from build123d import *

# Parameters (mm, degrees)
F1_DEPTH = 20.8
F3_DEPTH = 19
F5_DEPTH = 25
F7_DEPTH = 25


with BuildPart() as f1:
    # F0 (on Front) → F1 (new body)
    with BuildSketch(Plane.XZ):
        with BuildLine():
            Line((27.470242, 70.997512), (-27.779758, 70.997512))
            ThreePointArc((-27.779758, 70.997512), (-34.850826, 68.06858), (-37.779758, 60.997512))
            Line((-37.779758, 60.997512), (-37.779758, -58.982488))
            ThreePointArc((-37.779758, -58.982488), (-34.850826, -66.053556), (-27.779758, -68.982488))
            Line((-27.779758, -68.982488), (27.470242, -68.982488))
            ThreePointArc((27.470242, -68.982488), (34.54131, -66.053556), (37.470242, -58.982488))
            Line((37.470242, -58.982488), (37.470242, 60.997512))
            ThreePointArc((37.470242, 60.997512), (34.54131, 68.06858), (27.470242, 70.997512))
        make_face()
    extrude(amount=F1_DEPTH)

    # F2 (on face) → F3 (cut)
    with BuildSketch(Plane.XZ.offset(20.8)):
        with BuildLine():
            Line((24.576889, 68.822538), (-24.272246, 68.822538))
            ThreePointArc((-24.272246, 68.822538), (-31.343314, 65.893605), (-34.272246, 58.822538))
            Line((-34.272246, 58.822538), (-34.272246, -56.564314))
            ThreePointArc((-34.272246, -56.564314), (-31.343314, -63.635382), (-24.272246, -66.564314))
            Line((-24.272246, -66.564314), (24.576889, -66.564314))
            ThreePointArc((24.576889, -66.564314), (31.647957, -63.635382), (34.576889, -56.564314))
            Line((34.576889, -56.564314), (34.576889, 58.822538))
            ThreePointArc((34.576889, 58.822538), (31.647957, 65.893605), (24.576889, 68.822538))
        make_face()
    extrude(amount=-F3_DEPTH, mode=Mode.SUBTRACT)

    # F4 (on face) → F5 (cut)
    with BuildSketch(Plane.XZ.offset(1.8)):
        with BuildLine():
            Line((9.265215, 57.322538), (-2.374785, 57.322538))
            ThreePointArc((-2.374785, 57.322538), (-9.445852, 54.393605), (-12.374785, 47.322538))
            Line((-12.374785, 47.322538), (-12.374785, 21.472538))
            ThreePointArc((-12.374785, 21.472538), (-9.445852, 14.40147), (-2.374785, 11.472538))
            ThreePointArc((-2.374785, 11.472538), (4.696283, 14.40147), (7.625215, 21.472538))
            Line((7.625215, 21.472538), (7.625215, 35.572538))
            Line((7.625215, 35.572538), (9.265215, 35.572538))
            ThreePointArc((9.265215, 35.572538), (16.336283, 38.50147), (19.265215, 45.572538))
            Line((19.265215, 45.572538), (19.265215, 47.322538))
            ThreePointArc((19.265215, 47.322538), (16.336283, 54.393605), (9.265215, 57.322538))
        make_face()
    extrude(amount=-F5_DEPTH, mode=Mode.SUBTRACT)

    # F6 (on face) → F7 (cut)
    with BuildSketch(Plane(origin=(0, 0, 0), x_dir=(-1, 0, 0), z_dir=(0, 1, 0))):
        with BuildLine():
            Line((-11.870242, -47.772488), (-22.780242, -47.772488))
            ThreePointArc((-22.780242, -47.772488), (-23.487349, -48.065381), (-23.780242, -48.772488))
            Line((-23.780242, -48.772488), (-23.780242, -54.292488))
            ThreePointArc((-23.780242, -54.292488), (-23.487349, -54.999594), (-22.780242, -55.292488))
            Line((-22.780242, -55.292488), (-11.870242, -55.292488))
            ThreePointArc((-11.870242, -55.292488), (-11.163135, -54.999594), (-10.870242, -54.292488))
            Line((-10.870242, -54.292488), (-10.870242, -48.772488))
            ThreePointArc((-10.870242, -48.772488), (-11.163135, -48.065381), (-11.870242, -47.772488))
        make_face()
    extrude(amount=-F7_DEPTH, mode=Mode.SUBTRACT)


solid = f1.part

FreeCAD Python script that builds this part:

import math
import FreeCAD as App
import Part
import Sketcher

V = App.Vector
Q = App.Units.Quantity

doc = App.newDocument("Part")
body = doc.addObject("PartDesign::Body", "Body")

sketch1 = body.newObject("Sketcher::SketchObject", "Sketch")
sketch1.AttachmentSupport = (doc.getObject("XZ_Plane"), [""])
sketch1.MapMode = "FlatFace"
sketch1.addGeometry(Part.LineSegment(V(27, 71, 0), V(-28, 71, 0)), False)
sketch1.addGeometry(Part.ArcOfCircle(Part.Circle(V(-28, 61, 0), V(0, 0, 1), 10), math.radians(90), math.radians(180)), False)
sketch1.addGeometry(Part.LineSegment(V(-38, 61, 0), V(-38, -59, 0)), False)
sketch1.addGeometry(Part.ArcOfCircle(Part.Circle(V(-28, -59, 0), V(0, 0, 1), 10), math.radians(180), math.radians(270)), False)
sketch1.addGeometry(Part.LineSegment(V(-28, -69, 0), V(27, -69, 0)), False)
sketch1.addGeometry(Part.ArcOfCircle(Part.Circle(V(27, -59, 0), V(0, 0, 1), 10), math.radians(-90), math.radians(0)), False)
sketch1.addGeometry(Part.LineSegment(V(37, -59, 0), V(37, 61, 0)), False)
sketch1.addGeometry(Part.ArcOfCircle(Part.Circle(V(27, 61, 0), V(0, 0, 1), 10), math.radians(0), math.radians(90)), False)
sketch1.addConstraint(Sketcher.Constraint("Tangent", 0, 2, 1, 1))
sketch1.addConstraint(Sketcher.Constraint("Tangent", 1, 2, 2, 1))
sketch1.addConstraint(Sketcher.Constraint("Tangent", 2, 2, 3, 1))
sketch1.addConstraint(Sketcher.Constraint("Tangent", 3, 2, 4, 1))
sketch1.addConstraint(Sketcher.Constraint("Tangent", 4, 2, 5, 1))
sketch1.addConstraint(Sketcher.Constraint("Tangent", 5, 2, 6, 1))
sketch1.addConstraint(Sketcher.Constraint("Tangent", 6, 2, 7, 1))
sketch1.addConstraint(Sketcher.Constraint("Tangent", 7, 2, 0, 1))
sketch1.addConstraint(Sketcher.Constraint("Horizontal", 0))
sketch1.addConstraint(Sketcher.Constraint("Vertical", 2))
sketch1.addConstraint(Sketcher.Constraint("Horizontal", 4))
sketch1.addConstraint(Sketcher.Constraint("Vertical", 6))
sketch1.addConstraint(Sketcher.Constraint("Equal", 1, 3))
sketch1.addConstraint(Sketcher.Constraint("Equal", 3, 5))
sketch1.addConstraint(Sketcher.Constraint("Equal", 5, 7))
sketch1.addConstraint(Sketcher.Constraint("Radius", 1, Q("9.999999 mm")))
sketch1.addConstraint(Sketcher.Constraint("DistanceX", 0, 2, 0, 1, Q("55.25 mm")))
sketch1.addConstraint(Sketcher.Constraint("DistanceY", 2, 2, 2, 1, Q("119.98 mm")))
sketch1.addConstraint(Sketcher.Constraint("DistanceX", 1, 3, -1, 1, Q("27.779759 mm")))
sketch1.addConstraint(Sketcher.Constraint("DistanceY", 3, 3, -1, 1, Q("58.982489 mm")))
pad1 = body.newObject("PartDesign::Pad", "Pad")
pad1.Profile = sketch1
pad1.Length = 20.8

sketch2 = body.newObject("Sketcher::SketchObject", "Sketch001")
sketch2.AttachmentSupport = (doc.getObject("XZ_Plane"), [""])
sketch2.MapMode = "FlatFace"
sketch2.AttachmentOffset = App.Placement(V(0, 0, 20.8), App.Rotation())
sketch2.addGeometry(Part.LineSegment(V(25, 69, 0), V(-24, 69, 0)), False)
sketch2.addGeometry(Part.ArcOfCircle(Part.Circle(V(-24, 59, 0), V(0, 0, 1), 10), math.radians(90), math.radians(180)), False)
sketch2.addGeometry(Part.LineSegment(V(-34, 59, 0), V(-34, -57, 0)), False)
sketch2.addGeometry(Part.ArcOfCircle(Part.Circle(V(-24, -57, 0), V(0, 0, 1), 10), math.radians(180), math.radians(270)), False)
sketch2.addGeometry(Part.LineSegment(V(-24, -67, 0), V(25, -67, 0)), False)
sketch2.addGeometry(Part.ArcOfCircle(Part.Circle(V(25, -57, 0), V(0, 0, 1), 10), math.radians(-90), math.radians(0)), False)
sketch2.addGeometry(Part.LineSegment(V(35, -57, 0), V(35, 59, 0)), False)
sketch2.addGeometry(Part.ArcOfCircle(Part.Circle(V(25, 59, 0), V(0, 0, 1), 10), math.radians(0), math.radians(90)), False)
sketch2.addConstraint(Sketcher.Constraint("Tangent", 0, 2, 1, 1))
sketch2.addConstraint(Sketcher.Constraint("Tangent", 1, 2, 2, 1))
sketch2.addConstraint(Sketcher.Constraint("Tangent", 2, 2, 3, 1))
sketch2.addConstraint(Sketcher.Constraint("Tangent", 3, 2, 4, 1))
sketch2.addConstraint(Sketcher.Constraint("Tangent", 4, 2, 5, 1))
sketch2.addConstraint(Sketcher.Constraint("Tangent", 5, 2, 6, 1))
sketch2.addConstraint(Sketcher.Constraint("Tangent", 6, 2, 7, 1))
sketch2.addConstraint(Sketcher.Constraint("Tangent", 7, 2, 0, 1))
sketch2.addConstraint(Sketcher.Constraint("Horizontal", 0))
sketch2.addConstraint(Sketcher.Constraint("Vertical", 2))
sketch2.addConstraint(Sketcher.Constraint("Horizontal", 4))
sketch2.addConstraint(Sketcher.Constraint("Vertical", 6))
sketch2.addConstraint(Sketcher.Constraint("Equal", 1, 3))
sketch2.addConstraint(Sketcher.Constraint("Equal", 3, 5))
sketch2.addConstraint(Sketcher.Constraint("Equal", 5, 7))
sketch2.addConstraint(Sketcher.Constraint("Radius", 1, Q("10.000001 mm")))
sketch2.addConstraint(Sketcher.Constraint("DistanceX", 0, 2, 0, 1, Q("48.849135 mm")))
sketch2.addConstraint(Sketcher.Constraint("DistanceY", 2, 2, 2, 1, Q("115.386852 mm")))
sketch2.addConstraint(Sketcher.Constraint("DistanceX", -1, 1, 5, 3, Q("24.57689 mm")))
sketch2.addConstraint(Sketcher.Constraint("DistanceY", -1, 1, 1, 2, Q("58.822538 mm")))
pocket1 = body.newObject("PartDesign::Pocket", "Pocket")
pocket1.Profile = sketch2
pocket1.Length = 19

sketch3 = body.newObject("Sketcher::SketchObject", "Sketch002")
sketch3.AttachmentSupport = (doc.getObject("XZ_Plane"), [""])
sketch3.MapMode = "FlatFace"
sketch3.AttachmentOffset = App.Placement(V(0, 0, 1.8), App.Rotation())
sketch3.addGeometry(Part.LineSegment(V(9.3, 57.3, 0), V(-2.4, 57.3, 0)), False)
sketch3.addGeometry(Part.ArcOfCircle(Part.Circle(V(-2.4, 47.3, 0), V(0, 0, 1), 10), math.radians(90), math.radians(180)), False)
sketch3.addGeometry(Part.LineSegment(V(-12.4, 47.3, 0), V(-12.4, 21.5, 0)), False)
sketch3.addGeometry(Part.ArcOfCircle(Part.Circle(V(-2.4, 21.5, 0), V(0, 0, 1), 10), math.radians(-180), math.radians(-90)), False)
sketch3.addGeometry(Part.ArcOfCircle(Part.Circle(V(-2.4, 21.5, 0), V(0, 0, 1), 10), math.radians(-90), math.radians(0)), False)
sketch3.addGeometry(Part.LineSegment(V(7.6, 21.5, 0), V(7.6, 35.6, 0)), False)
sketch3.addGeometry(Part.LineSegment(V(7.6, 35.6, 0), V(9.3, 35.6, 0)), False)
sketch3.addGeometry(Part.ArcOfCircle(Part.Circle(V(9.3, 45.6, 0), V(0, 0, 1), 10), math.radians(-90), math.radians(0)), False)
sketch3.addGeometry(Part.LineSegment(V(19.3, 45.6, 0), V(19.3, 47.3, 0)), False)
sketch3.addGeometry(Part.ArcOfCircle(Part.Circle(V(9.3, 47.3, 0), V(0, 0, 1), 10), math.radians(0), math.radians(90)), False)
sketch3.addConstraint(Sketcher.Constraint("Tangent", 0, 2, 1, 1))
sketch3.addConstraint(Sketcher.Constraint("Tangent", 1, 2, 2, 1))
sketch3.addConstraint(Sketcher.Constraint("Tangent", 2, 2, 3, 1))
sketch3.addConstraint(Sketcher.Constraint("Tangent", 3, 2, 4, 1))
sketch3.addConstraint(Sketcher.Constraint("Tangent", 4, 2, 5, 1))
sketch3.addConstraint(Sketcher.Constraint("Coincident", 5, 2, 6, 1))
sketch3.addConstraint(Sketcher.Constraint("Tangent", 6, 2, 7, 1))
sketch3.addConstraint(Sketcher.Constraint("Tangent", 7, 2, 8, 1))
sketch3.addConstraint(Sketcher.Constraint("Tangent", 8, 2, 9, 1))
sketch3.addConstraint(Sketcher.Constraint("Tangent", 9, 2, 0, 1))
sketch3.addConstraint(Sketcher.Constraint("Horizontal", 0))
sketch3.addConstraint(Sketcher.Constraint("Vertical", 2))
sketch3.addConstraint(Sketcher.Constraint("Vertical", 5))
sketch3.addConstraint(Sketcher.Constraint("Horizontal", 6))
sketch3.addConstraint(Sketcher.Constraint("Vertical", 8))
sketch3.addConstraint(Sketcher.Constraint("Equal", 1, 3))
sketch3.addConstraint(Sketcher.Constraint("Equal", 3, 4))
sketch3.addConstraint(Sketcher.Constraint("Equal", 4, 7))
sketch3.addConstraint(Sketcher.Constraint("Equal", 7, 9))
sketch3.addConstraint(Sketcher.Constraint("Vertical", 0, 2, 3, 2))
sketch3.addConstraint(Sketcher.Constraint("Radius", 3, Q("10.000001 mm")))
sketch3.addConstraint(Sketcher.Constraint("DistanceY", 5, 1, 5, 2, Q("14.1 mm")))
sketch3.addConstraint(Sketcher.Constraint("DistanceX", 0, 2, 0, 1, Q("11.64 mm")))
sketch3.addConstraint(Sketcher.Constraint("DistanceY", 2, 2, 2, 1, Q("25.85 mm")))
sketch3.addConstraint(Sketcher.Constraint("DistanceY", -1, 1, 3, 3, Q("21.472539 mm")))
sketch3.addConstraint(Sketcher.Constraint("DistanceX", 1, 3, -1, 1, Q("2.374782 mm")))
pocket2 = body.newObject("PartDesign::Pocket", "Pocket001")
pocket2.Profile = sketch3
pocket2.Length = 25

sketch4 = body.newObject("Sketcher::SketchObject", "Sketch003")
sketch4.AttachmentSupport = (doc.getObject("XZ_Plane"), [""])
sketch4.MapMode = "FlatFace"
sketch4.addGeometry(Part.LineSegment(V(11.9, -47.8, 0), V(22.8, -47.8, 0)), False)
sketch4.addGeometry(Part.ArcOfCircle(Part.Circle(V(22.8, -48.8, 0), V(0, 0, 1), 1), math.radians(0), math.radians(90)), False)
sketch4.addGeometry(Part.LineSegment(V(23.8, -48.8, 0), V(23.8, -54.3, 0)), False)
sketch4.addGeometry(Part.ArcOfCircle(Part.Circle(V(22.8, -54.3, 0), V(0, 0, 1), 1), math.radians(-90), math.radians(0)), False)
sketch4.addGeometry(Part.LineSegment(V(22.8, -55.3, 0), V(11.9, -55.3, 0)), False)
sketch4.addGeometry(Part.ArcOfCircle(Part.Circle(V(11.9, -54.3, 0), V(0, 0, 1), 1), math.radians(-180), math.radians(-90)), False)
sketch4.addGeometry(Part.LineSegment(V(10.9, -54.3, 0), V(10.9, -48.8, 0)), False)
sketch4.addGeometry(Part.ArcOfCircle(Part.Circle(V(11.9, -48.8, 0), V(0, 0, 1), 1), math.radians(90), math.radians(180)), False)
sketch4.addConstraint(Sketcher.Constraint("Tangent", 0, 2, 1, 2))
sketch4.addConstraint(Sketcher.Constraint("Tangent", 1, 1, 2, 1))
sketch4.addConstraint(Sketcher.Constraint("Tangent", 2, 2, 3, 2))
sketch4.addConstraint(Sketcher.Constraint("Tangent", 3, 1, 4, 1))
sketch4.addConstraint(Sketcher.Constraint("Tangent", 4, 2, 5, 2))
sketch4.addConstraint(Sketcher.Constraint("Tangent", 5, 1, 6, 1))
sketch4.addConstraint(Sketcher.Constraint("Tangent", 6, 2, 7, 2))
sketch4.addConstraint(Sketcher.Constraint("Tangent", 7, 1, 0, 1))
sketch4.addConstraint(Sketcher.Constraint("Horizontal", 0))
sketch4.addConstraint(Sketcher.Constraint("Vertical", 2))
sketch4.addConstraint(Sketcher.Constraint("Horizontal", 4))
sketch4.addConstraint(Sketcher.Constraint("Vertical", 6))
sketch4.addConstraint(Sketcher.Constraint("Equal", 1, 3))
sketch4.addConstraint(Sketcher.Constraint("Equal", 3, 5))
sketch4.addConstraint(Sketcher.Constraint("Equal", 5, 7))
sketch4.addConstraint(Sketcher.Constraint("Radius", 1, Q("0.999999 mm")))
sketch4.addConstraint(Sketcher.Constraint("DistanceX", 0, 1, 0, 2, Q("10.91 mm")))
sketch4.addConstraint(Sketcher.Constraint("DistanceY", 2, 2, 2, 1, Q("5.52 mm")))
sketch4.addConstraint(Sketcher.Constraint("DistanceX", -1, 1, 3, 3, Q("22.780241 mm")))
sketch4.addConstraint(Sketcher.Constraint("DistanceY", 0, 2, -1, 1, Q("47.772488 mm")))
pocket3 = body.newObject("PartDesign::Pocket", "Pocket002")
pocket3.Profile = sketch4
pocket3.Length = 25
pocket3.Reversed = True

doc.recompute()
